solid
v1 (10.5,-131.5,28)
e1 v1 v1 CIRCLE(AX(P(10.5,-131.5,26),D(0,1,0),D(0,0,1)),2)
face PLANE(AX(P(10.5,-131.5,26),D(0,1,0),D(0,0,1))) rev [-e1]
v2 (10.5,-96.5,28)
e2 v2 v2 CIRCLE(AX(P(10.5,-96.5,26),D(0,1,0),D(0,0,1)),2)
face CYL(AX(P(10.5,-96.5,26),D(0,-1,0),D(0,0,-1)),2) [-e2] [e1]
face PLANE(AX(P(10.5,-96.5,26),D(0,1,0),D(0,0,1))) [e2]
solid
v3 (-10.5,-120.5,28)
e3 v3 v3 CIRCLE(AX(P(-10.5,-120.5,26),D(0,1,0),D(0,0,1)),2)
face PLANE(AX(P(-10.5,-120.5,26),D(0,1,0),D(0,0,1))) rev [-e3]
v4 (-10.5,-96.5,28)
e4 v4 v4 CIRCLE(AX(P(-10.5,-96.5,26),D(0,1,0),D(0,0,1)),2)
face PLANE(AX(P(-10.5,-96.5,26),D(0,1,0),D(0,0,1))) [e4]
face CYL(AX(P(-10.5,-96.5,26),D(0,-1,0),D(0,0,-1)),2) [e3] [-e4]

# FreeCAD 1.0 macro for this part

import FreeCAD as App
import Part
import Sketcher

V = App.Vector

doc = App.newDocument("Part")
body = doc.addObject("PartDesign::Body", "Body")

# Sketch on XZ plane
sketch1 = body.newObject("Sketcher::SketchObject", "Sketch")
sketch1.AttachmentSupport = (doc.getObject("XZ_Plane"), [""])
sketch1.MapMode = "FlatFace"
sketch1.AttachmentOffset = App.Placement(V(0, 0, 120.5), App.Rotation())
sketch1.addGeometry(Part.Circle(V(-10.5, 26, 0), V(0, 0, 1), 2), False)
sketch1.addConstraint(Sketcher.Constraint("Diameter", 0, 4.0))
sketch1.addConstraint(Sketcher.Constraint("DistanceY", -1, 1, 0, 3, 26.0))
sketch1.addConstraint(Sketcher.Constraint("DistanceX", 0, 3, -1, 1, 10.5))
pad1 = body.newObject("PartDesign::Pad", "Pad")
pad1.Profile = sketch1
pad1.Length = 24
pad1.Reversed = True
body2 = doc.addObject("PartDesign::Body", "Body001")

# Sketch on XZ plane
sketch2 = body2.newObject("Sketcher::SketchObject", "Sketch001")
sketch2.AttachmentSupport = (doc.getObject("XZ_Plane001"), [""])
sketch2.MapMode = "FlatFace"
sketch2.AttachmentOffset = App.Placement(V(0, 0, 131.5), App.Rotation())
sketch2.addGeometry(Part.Circle(V(10.5, 26, 0), V(0, 0, 1), 2), False)
sketch2.addConstraint(Sketcher.Constraint("Diameter", 0, 4.0))
sketch2.addConstraint(Sketcher.Constraint("DistanceY", -1, 1, 0, 3, 26.0))
sketch2.addConstraint(Sketcher.Constraint("DistanceX", -1, 1, 0, 3, 10.5))
pad2 = body2.newObject("PartDesign::Pad", "Pad001")
pad2.Profile = sketch2
pad2.Length = 35
pad2.Reversed = True

doc.recompute()
